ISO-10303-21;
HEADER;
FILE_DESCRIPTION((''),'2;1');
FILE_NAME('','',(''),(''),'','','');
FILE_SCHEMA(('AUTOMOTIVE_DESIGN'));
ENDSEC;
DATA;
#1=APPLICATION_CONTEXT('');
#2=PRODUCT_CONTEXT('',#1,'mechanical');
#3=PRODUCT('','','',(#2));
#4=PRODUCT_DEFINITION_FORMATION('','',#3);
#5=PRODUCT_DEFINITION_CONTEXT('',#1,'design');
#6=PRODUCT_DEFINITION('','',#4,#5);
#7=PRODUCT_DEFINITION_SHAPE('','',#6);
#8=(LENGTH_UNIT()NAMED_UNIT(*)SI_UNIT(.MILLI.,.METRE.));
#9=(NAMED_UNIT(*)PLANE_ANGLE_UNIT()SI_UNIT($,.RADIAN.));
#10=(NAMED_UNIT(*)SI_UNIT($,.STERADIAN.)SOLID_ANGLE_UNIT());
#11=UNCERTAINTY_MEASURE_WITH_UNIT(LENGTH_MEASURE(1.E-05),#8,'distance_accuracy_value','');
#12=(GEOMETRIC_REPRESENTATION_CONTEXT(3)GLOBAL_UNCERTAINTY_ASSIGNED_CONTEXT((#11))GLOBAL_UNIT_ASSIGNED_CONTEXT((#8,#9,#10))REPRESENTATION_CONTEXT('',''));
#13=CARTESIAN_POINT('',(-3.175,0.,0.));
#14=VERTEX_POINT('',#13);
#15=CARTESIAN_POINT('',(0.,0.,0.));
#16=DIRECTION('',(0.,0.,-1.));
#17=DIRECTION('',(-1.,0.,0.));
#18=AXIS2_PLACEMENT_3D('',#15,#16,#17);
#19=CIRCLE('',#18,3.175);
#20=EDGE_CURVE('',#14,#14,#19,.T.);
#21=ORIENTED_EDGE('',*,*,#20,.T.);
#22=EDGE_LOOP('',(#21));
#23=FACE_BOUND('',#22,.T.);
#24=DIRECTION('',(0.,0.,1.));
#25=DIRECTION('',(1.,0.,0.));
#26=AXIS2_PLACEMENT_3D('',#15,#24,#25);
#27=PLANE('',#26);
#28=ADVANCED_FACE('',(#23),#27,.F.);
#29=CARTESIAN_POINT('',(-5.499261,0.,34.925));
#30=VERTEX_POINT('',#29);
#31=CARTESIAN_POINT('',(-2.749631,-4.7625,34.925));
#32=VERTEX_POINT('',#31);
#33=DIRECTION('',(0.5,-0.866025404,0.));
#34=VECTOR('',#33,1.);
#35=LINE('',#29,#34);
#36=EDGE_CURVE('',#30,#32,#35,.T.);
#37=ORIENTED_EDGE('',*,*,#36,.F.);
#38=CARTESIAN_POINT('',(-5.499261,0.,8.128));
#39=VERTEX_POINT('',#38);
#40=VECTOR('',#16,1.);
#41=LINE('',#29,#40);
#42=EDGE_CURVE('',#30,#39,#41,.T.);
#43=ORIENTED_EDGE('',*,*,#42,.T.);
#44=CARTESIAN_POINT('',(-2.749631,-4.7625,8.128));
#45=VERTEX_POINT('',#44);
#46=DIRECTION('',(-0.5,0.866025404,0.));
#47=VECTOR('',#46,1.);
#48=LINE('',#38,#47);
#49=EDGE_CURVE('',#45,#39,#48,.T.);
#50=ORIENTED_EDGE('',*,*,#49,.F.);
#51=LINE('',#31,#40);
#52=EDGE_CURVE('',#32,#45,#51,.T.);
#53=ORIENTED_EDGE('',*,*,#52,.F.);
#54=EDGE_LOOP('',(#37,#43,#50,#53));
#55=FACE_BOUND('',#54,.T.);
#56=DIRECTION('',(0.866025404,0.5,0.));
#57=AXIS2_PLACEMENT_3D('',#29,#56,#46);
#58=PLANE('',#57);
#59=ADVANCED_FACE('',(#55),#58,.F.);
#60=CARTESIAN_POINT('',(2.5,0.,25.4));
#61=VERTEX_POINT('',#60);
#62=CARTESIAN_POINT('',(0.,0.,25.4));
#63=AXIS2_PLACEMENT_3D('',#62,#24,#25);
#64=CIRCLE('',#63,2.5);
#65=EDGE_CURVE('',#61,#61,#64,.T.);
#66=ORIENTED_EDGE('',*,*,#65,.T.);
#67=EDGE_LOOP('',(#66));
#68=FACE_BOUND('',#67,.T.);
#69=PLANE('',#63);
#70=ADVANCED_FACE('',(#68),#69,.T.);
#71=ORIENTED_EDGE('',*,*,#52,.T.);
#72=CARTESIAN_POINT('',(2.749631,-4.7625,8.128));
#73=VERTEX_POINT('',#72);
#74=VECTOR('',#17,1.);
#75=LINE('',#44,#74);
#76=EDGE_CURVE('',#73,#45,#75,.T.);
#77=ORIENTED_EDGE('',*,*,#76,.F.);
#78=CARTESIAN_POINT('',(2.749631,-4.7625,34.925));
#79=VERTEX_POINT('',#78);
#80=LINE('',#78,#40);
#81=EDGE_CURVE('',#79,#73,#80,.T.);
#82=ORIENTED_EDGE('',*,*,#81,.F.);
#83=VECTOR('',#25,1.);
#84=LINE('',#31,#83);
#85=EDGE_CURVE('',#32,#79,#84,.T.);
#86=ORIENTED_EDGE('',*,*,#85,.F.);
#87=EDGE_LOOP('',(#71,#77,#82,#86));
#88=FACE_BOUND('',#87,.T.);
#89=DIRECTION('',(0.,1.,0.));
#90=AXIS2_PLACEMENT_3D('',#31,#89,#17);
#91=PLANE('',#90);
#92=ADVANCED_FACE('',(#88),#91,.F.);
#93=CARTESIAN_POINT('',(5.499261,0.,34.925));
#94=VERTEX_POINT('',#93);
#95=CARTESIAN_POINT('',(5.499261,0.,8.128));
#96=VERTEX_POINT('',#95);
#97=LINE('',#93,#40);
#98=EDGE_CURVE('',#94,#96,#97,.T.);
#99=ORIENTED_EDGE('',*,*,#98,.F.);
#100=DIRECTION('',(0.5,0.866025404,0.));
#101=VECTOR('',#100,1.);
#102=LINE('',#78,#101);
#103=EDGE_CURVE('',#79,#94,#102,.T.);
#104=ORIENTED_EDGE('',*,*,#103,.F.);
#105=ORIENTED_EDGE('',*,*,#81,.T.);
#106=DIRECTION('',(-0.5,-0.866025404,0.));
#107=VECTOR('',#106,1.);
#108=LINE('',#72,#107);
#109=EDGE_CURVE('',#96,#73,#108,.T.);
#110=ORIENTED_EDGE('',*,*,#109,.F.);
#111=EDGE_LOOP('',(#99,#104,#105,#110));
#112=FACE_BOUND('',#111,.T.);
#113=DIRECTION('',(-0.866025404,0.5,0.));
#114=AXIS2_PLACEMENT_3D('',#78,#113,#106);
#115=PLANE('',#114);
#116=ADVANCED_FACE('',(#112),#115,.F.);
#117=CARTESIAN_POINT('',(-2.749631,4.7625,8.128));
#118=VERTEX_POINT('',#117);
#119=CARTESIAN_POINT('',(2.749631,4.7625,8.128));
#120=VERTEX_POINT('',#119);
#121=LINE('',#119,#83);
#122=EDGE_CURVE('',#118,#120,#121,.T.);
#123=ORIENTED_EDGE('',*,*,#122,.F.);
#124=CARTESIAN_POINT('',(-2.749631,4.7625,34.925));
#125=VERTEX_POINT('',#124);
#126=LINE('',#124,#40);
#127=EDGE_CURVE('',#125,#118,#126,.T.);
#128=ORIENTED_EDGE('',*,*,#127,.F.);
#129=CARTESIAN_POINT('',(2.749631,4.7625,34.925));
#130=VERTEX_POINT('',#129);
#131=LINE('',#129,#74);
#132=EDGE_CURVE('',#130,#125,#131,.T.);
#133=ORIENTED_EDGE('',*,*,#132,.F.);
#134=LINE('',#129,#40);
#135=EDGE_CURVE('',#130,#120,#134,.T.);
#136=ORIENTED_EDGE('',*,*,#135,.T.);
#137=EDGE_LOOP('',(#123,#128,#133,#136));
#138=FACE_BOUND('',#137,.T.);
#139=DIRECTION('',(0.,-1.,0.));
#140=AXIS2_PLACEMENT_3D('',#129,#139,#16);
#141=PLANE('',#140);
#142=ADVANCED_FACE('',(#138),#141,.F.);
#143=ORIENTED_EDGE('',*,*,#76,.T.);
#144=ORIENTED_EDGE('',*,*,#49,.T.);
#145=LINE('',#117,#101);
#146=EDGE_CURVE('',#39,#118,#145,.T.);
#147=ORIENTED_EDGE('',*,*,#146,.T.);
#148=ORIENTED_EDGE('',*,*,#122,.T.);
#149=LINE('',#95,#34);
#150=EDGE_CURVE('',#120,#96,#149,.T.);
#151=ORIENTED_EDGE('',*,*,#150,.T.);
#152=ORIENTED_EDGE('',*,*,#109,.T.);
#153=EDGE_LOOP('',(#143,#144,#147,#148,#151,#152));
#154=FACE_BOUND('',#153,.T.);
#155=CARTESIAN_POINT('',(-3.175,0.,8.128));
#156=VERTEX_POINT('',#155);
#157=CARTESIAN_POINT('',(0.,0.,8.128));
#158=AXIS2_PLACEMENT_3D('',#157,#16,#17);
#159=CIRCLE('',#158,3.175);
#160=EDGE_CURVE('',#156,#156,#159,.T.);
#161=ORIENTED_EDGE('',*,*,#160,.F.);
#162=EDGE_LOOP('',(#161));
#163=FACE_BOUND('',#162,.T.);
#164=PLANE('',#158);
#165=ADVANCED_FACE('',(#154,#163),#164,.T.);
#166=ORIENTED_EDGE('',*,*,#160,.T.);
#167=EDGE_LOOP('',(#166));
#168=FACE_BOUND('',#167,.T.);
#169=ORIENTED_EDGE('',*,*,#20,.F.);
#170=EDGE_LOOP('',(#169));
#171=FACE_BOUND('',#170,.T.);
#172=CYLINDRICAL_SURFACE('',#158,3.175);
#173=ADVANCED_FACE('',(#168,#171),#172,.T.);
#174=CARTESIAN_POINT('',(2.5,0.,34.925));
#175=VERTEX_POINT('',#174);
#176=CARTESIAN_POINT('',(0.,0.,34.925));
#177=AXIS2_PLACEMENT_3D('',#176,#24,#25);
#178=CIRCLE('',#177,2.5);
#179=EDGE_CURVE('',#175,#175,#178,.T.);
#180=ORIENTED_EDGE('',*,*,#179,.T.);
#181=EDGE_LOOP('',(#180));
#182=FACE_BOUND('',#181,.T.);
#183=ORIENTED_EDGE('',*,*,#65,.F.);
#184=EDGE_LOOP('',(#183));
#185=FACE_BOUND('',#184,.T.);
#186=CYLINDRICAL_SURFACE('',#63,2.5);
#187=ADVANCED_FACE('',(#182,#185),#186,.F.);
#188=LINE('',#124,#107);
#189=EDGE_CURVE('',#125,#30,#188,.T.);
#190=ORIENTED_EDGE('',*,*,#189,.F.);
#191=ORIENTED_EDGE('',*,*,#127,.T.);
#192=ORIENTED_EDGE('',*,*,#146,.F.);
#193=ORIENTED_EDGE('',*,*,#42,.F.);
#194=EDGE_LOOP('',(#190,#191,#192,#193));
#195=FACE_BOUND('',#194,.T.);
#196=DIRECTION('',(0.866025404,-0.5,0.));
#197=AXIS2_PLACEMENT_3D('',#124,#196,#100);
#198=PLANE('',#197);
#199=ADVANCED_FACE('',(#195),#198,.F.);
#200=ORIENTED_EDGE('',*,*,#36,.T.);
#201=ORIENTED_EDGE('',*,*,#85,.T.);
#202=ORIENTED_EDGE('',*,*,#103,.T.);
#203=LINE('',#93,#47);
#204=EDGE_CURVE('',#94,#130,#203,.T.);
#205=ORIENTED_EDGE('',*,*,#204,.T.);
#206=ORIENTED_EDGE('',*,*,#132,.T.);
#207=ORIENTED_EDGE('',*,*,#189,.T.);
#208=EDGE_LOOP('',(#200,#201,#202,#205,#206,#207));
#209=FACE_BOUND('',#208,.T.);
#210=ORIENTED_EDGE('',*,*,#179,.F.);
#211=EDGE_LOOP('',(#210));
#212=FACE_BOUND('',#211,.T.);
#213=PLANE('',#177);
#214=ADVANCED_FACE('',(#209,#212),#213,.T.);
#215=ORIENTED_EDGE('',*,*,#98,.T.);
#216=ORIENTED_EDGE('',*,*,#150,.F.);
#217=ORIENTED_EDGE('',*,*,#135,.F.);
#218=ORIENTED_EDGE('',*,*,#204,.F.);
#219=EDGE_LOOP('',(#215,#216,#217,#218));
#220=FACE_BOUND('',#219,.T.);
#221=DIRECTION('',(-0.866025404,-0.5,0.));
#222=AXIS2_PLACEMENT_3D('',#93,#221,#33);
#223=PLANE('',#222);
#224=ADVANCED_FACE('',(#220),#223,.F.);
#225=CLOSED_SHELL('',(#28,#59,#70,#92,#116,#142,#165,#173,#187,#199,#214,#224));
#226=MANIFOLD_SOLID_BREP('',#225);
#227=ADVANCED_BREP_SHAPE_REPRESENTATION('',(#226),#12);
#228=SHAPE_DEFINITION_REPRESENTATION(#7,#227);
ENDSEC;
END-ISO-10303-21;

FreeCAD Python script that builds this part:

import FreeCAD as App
import Part
import Sketcher

V = App.Vector
Q = App.Units.Quantity

doc = App.newDocument("Part")
body = doc.addObject("PartDesign::Body", "Body")

sketch1 = body.newObject("Sketcher::SketchObject", "Sketch")
sketch1.AttachmentSupport = (doc.getObject("XY_Plane"), [""])
sketch1.MapMode = "FlatFace"
sketch1.addGeometry([
    Part.LineSegment(V(2.749631, -4.7625, 0), V(5.499261, 0, 0)),
    Part.LineSegment(V(5.499261, 0, 0), V(2.749631, 4.7625, 0)),
    Part.LineSegment(V(2.749631, 4.7625, 0), V(-2.749631, 4.7625, 0)),
    Part.LineSegment(V(-2.749631, 4.7625, 0), V(-5.499261, 0, 0)),
    Part.LineSegment(V(-5.499261, 0, 0), V(-2.749631, -4.7625, 0)),
    Part.LineSegment(V(-2.749631, -4.7625, 0), V(2.749631, -4.7625, 0)),
], False)
sketch1.addConstraint([
    Sketcher.Constraint("Coincident", 0, 2, 1, 1),
    Sketcher.Constraint("Coincident", 1, 2, 2, 1),
    Sketcher.Constraint("Coincident", 2, 2, 3, 1),
    Sketcher.Constraint("Coincident", 3, 2, 4, 1),
    Sketcher.Constraint("Coincident", 4, 2, 5, 1),
    Sketcher.Constraint("Coincident", 5, 2, 0, 1),
    Sketcher.Constraint("Horizontal", 2),
    Sketcher.Constraint("Horizontal", 5),
    Sketcher.Constraint("Symmetric", 0, 2, 3, 2, -1, 1),
    Sketcher.Constraint("Symmetric", 1, 2, 4, 2, -1, 1),
    Sketcher.Constraint("PointOnObject", 0, 2, -1),
    Sketcher.Constraint("Parallel", 0, 3),
    Sketcher.Constraint("Vertical", 2, 2, 4, 2),
    Sketcher.Constraint("Angle", 0, Q("60 deg")),
    Sketcher.Constraint("DistanceY", -1, 1, 1, 2, Q("0.1875 in")),
    Sketcher.Constraint("DistanceX", 2, 2, 2, 1, Q("5.499261 mm")),
])
pad1 = body.newObject("PartDesign::Pad", "Pad")
pad1.Profile = sketch1
pad1.Length = Q("1.375 in")

sketch2 = body.newObject("Sketcher::SketchObject", "Sketch001")
sketch2.AttachmentSupport = (doc.getObject("XY_Plane"), [""])
sketch2.MapMode = "FlatFace"
sketch2.AttachmentOffset = App.Placement(V(0, 0, 1.375 * 25.4), App.Rotation())
sketch2.addGeometry(Part.Circle(V(0, 0, 0), V(0, 0, 1), 2.5), False)
sketch2.addConstraint([
    Sketcher.Constraint("Coincident", 0, 3, -1, 1),
    Sketcher.Constraint("Diameter", 0, Q("5 mm")),
])
pocket1 = body.newObject("PartDesign::Pocket", "Pocket")
pocket1.Profile = sketch2
pocket1.Length = Q("0.375 in")

sketch3 = body.newObject("Sketcher::SketchObject", "Sketch002")
sketch3.AttachmentSupport = (doc.getObject("XY_Plane"), [""])
sketch3.MapMode = "FlatFace"
sketch3.addGeometry([
    Part.LineSegment(V(10.282, 9.545, 0), V(10.282, -9.546, 0)),
    Part.LineSegment(V(10.282, -9.546, 0), V(-10.282, -9.546, 0)),
    Part.LineSegment(V(-10.282, -9.546, 0), V(-10.282, 9.545, 0)),
    Part.LineSegment(V(-10.282, 9.545, 0), V(10.282, 9.545, 0)),
    Part.Circle(V(0, 0, 0), V(0, 0, 1), 3.175),
], False)
sketch3.addConstraint([
    Sketcher.Constraint("Coincident", 0, 2, 1, 1),
    Sketcher.Constraint("Coincident", 1, 2, 2, 1),
    Sketcher.Constraint("Coincident", 2, 2, 3, 1),
    Sketcher.Constraint("Coincident", 3, 2, 0, 1),
    Sketcher.Constraint("Vertical", 0),
    Sketcher.Constraint("Horizontal", 1),
    Sketcher.Constraint("Vertical", 2),
    Sketcher.Constraint("Horizontal", 3),
    Sketcher.Constraint("Coincident", 4, 3, -1, 1),
    Sketcher.Constraint("Diameter", 4, Q("0.25 in")),
    Sketcher.Constraint("DistanceX", 1, 2, 1, 1, Q("20.564 mm")),
    Sketcher.Constraint("DistanceY", 0, 2, 0, 1, Q("19.091 mm")),
    Sketcher.Constraint("DistanceX", -1, 1, 0, 2, Q("10.282 mm")),
    Sketcher.Constraint("DistanceY", 0, 2, -1, 1, Q("9.546 mm")),
])
pocket2 = body.newObject("PartDesign::Pocket", "Pocket001")
pocket2.Profile = sketch3
pocket2.Length = Q("0.32 in")
pocket2.Reversed = True

doc.recompute()
